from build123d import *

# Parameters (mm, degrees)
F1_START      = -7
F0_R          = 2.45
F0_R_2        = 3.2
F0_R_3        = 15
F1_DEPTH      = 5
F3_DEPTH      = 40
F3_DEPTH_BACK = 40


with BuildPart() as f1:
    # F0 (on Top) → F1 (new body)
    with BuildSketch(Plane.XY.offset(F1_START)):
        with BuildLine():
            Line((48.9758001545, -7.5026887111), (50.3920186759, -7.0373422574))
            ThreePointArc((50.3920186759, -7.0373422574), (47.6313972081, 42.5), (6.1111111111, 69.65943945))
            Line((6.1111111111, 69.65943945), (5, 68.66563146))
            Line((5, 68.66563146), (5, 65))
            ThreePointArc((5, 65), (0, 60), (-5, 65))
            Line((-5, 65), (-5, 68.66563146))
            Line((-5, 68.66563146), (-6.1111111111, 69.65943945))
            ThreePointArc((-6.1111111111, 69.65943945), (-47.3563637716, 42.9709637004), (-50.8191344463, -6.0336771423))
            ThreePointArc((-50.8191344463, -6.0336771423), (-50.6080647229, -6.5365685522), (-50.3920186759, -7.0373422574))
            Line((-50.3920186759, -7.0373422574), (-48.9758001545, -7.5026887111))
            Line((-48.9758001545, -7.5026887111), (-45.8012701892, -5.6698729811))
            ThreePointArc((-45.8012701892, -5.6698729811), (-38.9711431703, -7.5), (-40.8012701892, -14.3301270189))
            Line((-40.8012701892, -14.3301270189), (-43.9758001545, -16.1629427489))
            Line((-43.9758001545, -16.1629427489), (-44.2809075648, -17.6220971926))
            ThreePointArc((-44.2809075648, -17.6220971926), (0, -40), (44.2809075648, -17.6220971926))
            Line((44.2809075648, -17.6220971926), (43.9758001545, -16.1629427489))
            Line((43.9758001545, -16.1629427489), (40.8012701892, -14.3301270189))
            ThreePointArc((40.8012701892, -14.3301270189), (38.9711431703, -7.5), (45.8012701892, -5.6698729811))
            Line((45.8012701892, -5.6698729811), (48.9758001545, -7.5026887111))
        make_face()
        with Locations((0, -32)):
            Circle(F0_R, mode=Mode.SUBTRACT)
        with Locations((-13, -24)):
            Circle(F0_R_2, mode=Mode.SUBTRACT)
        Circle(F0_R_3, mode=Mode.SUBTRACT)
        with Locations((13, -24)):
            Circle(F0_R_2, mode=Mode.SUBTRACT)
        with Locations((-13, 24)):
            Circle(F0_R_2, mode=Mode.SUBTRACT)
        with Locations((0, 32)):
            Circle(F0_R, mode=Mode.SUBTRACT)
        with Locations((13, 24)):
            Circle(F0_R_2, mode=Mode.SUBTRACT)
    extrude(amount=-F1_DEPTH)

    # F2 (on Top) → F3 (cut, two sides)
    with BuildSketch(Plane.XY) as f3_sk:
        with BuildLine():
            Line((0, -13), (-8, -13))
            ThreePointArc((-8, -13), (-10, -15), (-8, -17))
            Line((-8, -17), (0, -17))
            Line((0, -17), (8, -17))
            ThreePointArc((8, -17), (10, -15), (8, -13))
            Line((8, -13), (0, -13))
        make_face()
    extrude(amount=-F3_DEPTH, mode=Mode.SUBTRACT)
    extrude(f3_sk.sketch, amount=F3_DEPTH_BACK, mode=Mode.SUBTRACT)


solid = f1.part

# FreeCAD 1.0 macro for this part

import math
import FreeCAD as App
import Part
import Sketcher
from FreeCAD import Vector
Q = App.Units.Quantity

doc = App.newDocument("Part")
body = doc.addObject("PartDesign::Body", "Body")

# Sketch on XY plane
sketch1 = doc.addObject("Sketcher::SketchObject", "Sketch")
body.addObject(sketch1)
sketch1.AttachmentSupport = (doc.XY_Plane, [""])
sketch1.MapMode = "FlatFace"
sketch1.AttachmentOffset = App.Placement(Vector(0, 0, -7), App.Rotation())
sketch1.addGeometry(Part.LineSegment(Vector(48.9758, -7.502689, 0), Vector(50.392019, -7.037342, 0)), False)
sketch1.addGeometry(Part.ArcOfCircle(Part.Circle(Vector(0, 15, 0), Vector(0, 0, 1), 55), math.radians(-23.62063), math.radians(83.62063)), False)
sketch1.addGeometry(Part.LineSegment(Vector(6.111111, 69.659439, 0), Vector(5, 68.665631, 0)), False)
sketch1.addGeometry(Part.LineSegment(Vector(5, 68.665631, 0), Vector(5, 65, 0)), False)
sketch1.addGeometry(Part.ArcOfCircle(Part.Circle(Vector(0, 65, 0), Vector(0, 0, 1), 5), math.radians(180), math.radians(360)), False)
sketch1.addGeometry(Part.LineSegment(Vector(-5, 65, 0), Vector(-5, 68.665631, 0)), False)
sketch1.addGeometry(Part.LineSegment(Vector(-5, 68.665631, 0), Vector(-6.111111, 69.659439, 0)), False)
sketch1.addGeometry(Part.ArcOfCircle(Part.Circle(Vector(0, 15, 0), Vector(0, 0, 1), 55), math.radians(96.37937), math.radians(202.484315)), False)
sketch1.addGeometry(Part.ArcOfCircle(Part.Circle(Vector(0, 15, 0), Vector(0, 0, 1), 55), math.radians(-157.515685), math.radians(-156.37937)), False)
sketch1.addGeometry(Part.LineSegment(Vector(-50.392019, -7.037342, 0), Vector(-48.9758, -7.502689, 0)), False)
sketch1.addGeometry(Part.LineSegment(Vector(-48.9758, -7.502689, 0), Vector(-45.80127, -5.669873, 0)), False)
sketch1.addGeometry(Part.ArcOfCircle(Part.Circle(Vector(-43.30127, -10, 0), Vector(0, 0, 1), 5), math.radians(-60), math.radians(120)), False)
sketch1.addGeometry(Part.LineSegment(Vector(-40.80127, -14.330127, 0), Vector(-43.9758, -16.162943, 0)), False)
sketch1.addGeometry(Part.LineSegment(Vector(-43.9758, -16.162943, 0), Vector(-44.280908, -17.622097, 0)), False)
sketch1.addGeometry(Part.ArcOfCircle(Part.Circle(Vector(0, 15, 0), Vector(0, 0, 1), 55), math.radians(-143.62063), math.radians(-36.37937)), False)
sketch1.addGeometry(Part.LineSegment(Vector(44.280908, -17.622097, 0), Vector(43.9758, -16.162943, 0)), False)
sketch1.addGeometry(Part.LineSegment(Vector(43.9758, -16.162943, 0), Vector(40.80127, -14.330127, 0)), False)
sketch1.addGeometry(Part.ArcOfCircle(Part.Circle(Vector(43.30127, -10, 0), Vector(0, 0, 1), 5), math.radians(60), math.radians(240)), False)
sketch1.addGeometry(Part.LineSegment(Vector(45.80127, -5.669873, 0), Vector(48.9758, -7.502689, 0)), False)
sketch1.addGeometry(Part.Circle(Vector(-13, -24, 0), Vector(0, 0, 1), 3.2), False)
sketch1.addGeometry(Part.Circle(Vector(0, -32, 0), Vector(0, 0, 1), 2.45), False)
sketch1.addGeometry(Part.Circle(Vector(13, -24, 0), Vector(0, 0, 1), 3.2), False)
sketch1.addGeometry(Part.Circle(Vector(-13, 24, 0), Vector(0, 0, 1), 3.2), False)
sketch1.addGeometry(Part.Circle(Vector(0, 0, 0), Vector(0, 0, 1), 15), False)
sketch1.addGeometry(Part.Circle(Vector(0, 32, 0), Vector(0, 0, 1), 2.45), False)
sketch1.addGeometry(Part.Circle(Vector(13, 24, 0), Vector(0, 0, 1), 3.2), False)
sketch1.addConstraint(Sketcher.Constraint("Coincident", 0, 2, 1, 1))
sketch1.addConstraint(Sketcher.Constraint("Coincident", 1, 2, 2, 1))
sketch1.addConstraint(Sketcher.Constraint("Coincident", 2, 2, 3, 1))
sketch1.addConstraint(Sketcher.Constraint("Tangent", 3, 2, 4, 2))
sketch1.addConstraint(Sketcher.Constraint("Tangent", 4, 1, 5, 1))
sketch1.addConstraint(Sketcher.Constraint("Coincident", 5, 2, 6, 1))
sketch1.addConstraint(Sketcher.Constraint("Coincident", 6, 2, 7, 1))
sketch1.addConstraint(Sketcher.Constraint("Tangent", 7, 2, 8, 1))
sketch1.addConstraint(Sketcher.Constraint("Coincident", 8, 2, 9, 1))
sketch1.addConstraint(Sketcher.Constraint("Coincident", 9, 2, 10, 1))
sketch1.addConstraint(Sketcher.Constraint("Tangent", 10, 2, 11, 2))
sketch1.addConstraint(Sketcher.Constraint("Tangent", 11, 1, 12, 1))
sketch1.addConstraint(Sketcher.Constraint("Coincident", 12, 2, 13, 1))
sketch1.addConstraint(Sketcher.Constraint("Coincident", 13, 2, 14, 1))
sketch1.addConstraint(Sketcher.Constraint("Coincident", 14, 2, 15, 1))
sketch1.addConstraint(Sketcher.Constraint("Coincident", 15, 2, 16, 1))
sketch1.addConstraint(Sketcher.Constraint("Tangent", 16, 2, 17, 2))
sketch1.addConstraint(Sketcher.Constraint("Tangent", 17, 1, 18, 1))
sketch1.addConstraint(Sketcher.Constraint("Coincident", 18, 2, 0, 1))
sketch1.addConstraint(Sketcher.Constraint("Vertical", 3))
sketch1.addConstraint(Sketcher.Constraint("Vertical", 5))
sketch1.addConstraint(Sketcher.Constraint("Coincident", 23, 3, -1, 1))
sketch1.addConstraint(Sketcher.Constraint("Coincident", 7, 3, 1, 3))
sketch1.addConstraint(Sketcher.Constraint("Coincident", 14, 3, 1, 3))
sketch1.addConstraint(Sketcher.Constraint("Equal", 1, 7))
sketch1.addConstraint(Sketcher.Constraint("Equal", 7, 8))
sketch1.addConstraint(Sketcher.Constraint("Equal", 4, 11))
sketch1.addConstraint(Sketcher.Constraint("Equal", 8, 14))
sketch1.addConstraint(Sketcher.Constraint("Equal", 11, 17))
sketch1.addConstraint(Sketcher.Constraint("Equal", 19, 21))
sketch1.addConstraint(Sketcher.Constraint("Equal", 21, 22))
sketch1.addConstraint(Sketcher.Constraint("Equal", 20, 24))
sketch1.addConstraint(Sketcher.Constraint("Equal", 22, 25))
sketch1.addConstraint(Sketcher.Constraint("Symmetric", 21, 3, 22, 3, -1, 1))
sketch1.addConstraint(Sketcher.Constraint("Symmetric", 20, 3, 24, 3, -1, 1))
sketch1.addConstraint(Sketcher.Constraint("Symmetric", 19, 3, 25, 3, -1, 1))
sketch1.addConstraint(Sketcher.Constraint("Symmetric", 11, 3, 17, 3, -2))
sketch1.addConstraint(Sketcher.Constraint("Symmetric", 19, 3, 21, 3, -2))
sketch1.addConstraint(Sketcher.Constraint("Symmetric", 2, 2, 5, 2, -2))
sketch1.addConstraint(Sketcher.Constraint("Symmetric", 1, 2, 6, 2, -2))
sketch1.addConstraint(Sketcher.Constraint("Symmetric", 12, 2, 15, 2, -2))
sketch1.addConstraint(Sketcher.Constraint("Symmetric", 9, 2, 18, 2, -2))
sketch1.addConstraint(Sketcher.Constraint("PointOnObject", 20, 3, -2))
sketch1.addConstraint(Sketcher.Constraint("Parallel", 10, 12))
sketch1.addConstraint(Sketcher.Constraint("Horizontal", 0, 2, 8, 2))
sketch1.addConstraint(Sketcher.Constraint("Horizontal", 13, 2, 14, 2))
sketch1.addConstraint(Sketcher.Constraint("Equal", 0, 2))
sketch1.addConstraint(Sketcher.Constraint("Equal", 10, 12))
sketch1.addConstraint(Sketcher.Constraint("Equal", 9, 13))
sketch1.addConstraint(Sketcher.Constraint("Diameter", 23, Q("30 mm")))
sketch1.addConstraint(Sketcher.Constraint("Radius", 1, Q("55 mm")))
sketch1.addConstraint(Sketcher.Constraint("Radius", 4, Q("5 mm")))
sketch1.addConstraint(Sketcher.Constraint("Diameter", 19, Q("6.4 mm")))
sketch1.addConstraint(Sketcher.Constraint("Diameter", 20, Q("4.9 mm")))
sketch1.addConstraint(Sketcher.Constraint("Angle", 10, Q("30 deg")))
sketch1.addConstraint(Sketcher.Constraint("DistanceY", -1, 1, 1, 3, Q("15 mm")))
sketch1.addConstraint(Sketcher.Constraint("DistanceY", -1, 1, 4, 3, Q("65 mm")))
sketch1.addConstraint(Sketcher.Constraint("DistanceY", 11, 3, -1, 1, Q("10 mm")))
sketch1.addConstraint(Sketcher.Constraint("DistanceX", 19, 3, -1, 1, Q("13 mm")))
sketch1.addConstraint(Sketcher.Constraint("DistanceY", 19, 3, -1, 1, Q("24 mm")))
sketch1.addConstraint(Sketcher.Constraint("DistanceY", 20, 3, -1, 1, Q("32 mm")))
sketch1.addConstraint(Sketcher.Constraint("DistanceY", 3, 2, 3, 1, Q("3.665631 mm")))
sketch1.addConstraint(Sketcher.Constraint("DistanceX", 9, 2, -1, 1, Q("48.9758 mm")))
sketch1.addConstraint(Sketcher.Constraint("DistanceY", 12, 2, 8, 2, Q("9.1256 mm")))
sketch1.addConstraint(Sketcher.Constraint("Distance", 0, Q("1.490712 mm")))
sketch1.addConstraint(Sketcher.Constraint("DistanceY", 9, 2, 7, 2, Q("1.469012 mm")))
pad1 = doc.addObject("PartDesign::Pad", "Pad")
body.addObject(pad1)
pad1.Profile = sketch1
pad1.Length = 5
pad1.Reversed = True

# Sketch on XY plane
sketch2 = doc.addObject("Sketcher::SketchObject", "Sketch001")
body.addObject(sketch2)
sketch2.AttachmentSupport = (doc.XY_Plane, [""])
sketch2.MapMode = "FlatFace"
sketch2.addGeometry(Part.ArcOfCircle(Part.Circle(Vector(-8, -15, 0), Vector(0, 0, 1), 2), math.radians(90), math.radians(270)), False)
sketch2.addGeometry(Part.LineSegment(Vector(-8, -17, 0), Vector(8, -17, 0)), False)
sketch2.addGeometry(Part.ArcOfCircle(Part.Circle(Vector(8, -15, 0), Vector(0, 0, 1), 2), math.radians(-90), math.radians(90)), False)
sketch2.addGeometry(Part.LineSegment(Vector(8, -13, 0), Vector(-8, -13, 0)), False)
sketch2.addConstraint(Sketcher.Constraint("Tangent", 0, 2, 1, 1))
sketch2.addConstraint(Sketcher.Constraint("Tangent", 1, 2, 2, 1))
sketch2.addConstraint(Sketcher.Constraint("Tangent", 2, 2, 3, 1))
sketch2.addConstraint(Sketcher.Constraint("Tangent", 3, 2, 0, 1))
sketch2.addConstraint(Sketcher.Constraint("Horizontal", 1))
sketch2.addConstraint(Sketcher.Constraint("Horizontal", 3))
sketch2.addConstraint(Sketcher.Constraint("Radius", 0, Q("2 mm")))
sketch2.addConstraint(Sketcher.Constraint("DistanceX", 1, 1, 1, 2, Q("16 mm")))
sketch2.addConstraint(Sketcher.Constraint("DistanceX", 0, 3, -1, 1, Q("8 mm")))
sketch2.addConstraint(Sketcher.Constraint("DistanceY", 0, 3, -1, 1, Q("15 mm")))
pocket1 = doc.addObject("PartDesign::Pocket", "Pocket")
body.addObject(pocket1)
pocket1.Profile = sketch2
pocket1.Type = "ThroughAll"
pocket1.Midplane = True

doc.recompute()
